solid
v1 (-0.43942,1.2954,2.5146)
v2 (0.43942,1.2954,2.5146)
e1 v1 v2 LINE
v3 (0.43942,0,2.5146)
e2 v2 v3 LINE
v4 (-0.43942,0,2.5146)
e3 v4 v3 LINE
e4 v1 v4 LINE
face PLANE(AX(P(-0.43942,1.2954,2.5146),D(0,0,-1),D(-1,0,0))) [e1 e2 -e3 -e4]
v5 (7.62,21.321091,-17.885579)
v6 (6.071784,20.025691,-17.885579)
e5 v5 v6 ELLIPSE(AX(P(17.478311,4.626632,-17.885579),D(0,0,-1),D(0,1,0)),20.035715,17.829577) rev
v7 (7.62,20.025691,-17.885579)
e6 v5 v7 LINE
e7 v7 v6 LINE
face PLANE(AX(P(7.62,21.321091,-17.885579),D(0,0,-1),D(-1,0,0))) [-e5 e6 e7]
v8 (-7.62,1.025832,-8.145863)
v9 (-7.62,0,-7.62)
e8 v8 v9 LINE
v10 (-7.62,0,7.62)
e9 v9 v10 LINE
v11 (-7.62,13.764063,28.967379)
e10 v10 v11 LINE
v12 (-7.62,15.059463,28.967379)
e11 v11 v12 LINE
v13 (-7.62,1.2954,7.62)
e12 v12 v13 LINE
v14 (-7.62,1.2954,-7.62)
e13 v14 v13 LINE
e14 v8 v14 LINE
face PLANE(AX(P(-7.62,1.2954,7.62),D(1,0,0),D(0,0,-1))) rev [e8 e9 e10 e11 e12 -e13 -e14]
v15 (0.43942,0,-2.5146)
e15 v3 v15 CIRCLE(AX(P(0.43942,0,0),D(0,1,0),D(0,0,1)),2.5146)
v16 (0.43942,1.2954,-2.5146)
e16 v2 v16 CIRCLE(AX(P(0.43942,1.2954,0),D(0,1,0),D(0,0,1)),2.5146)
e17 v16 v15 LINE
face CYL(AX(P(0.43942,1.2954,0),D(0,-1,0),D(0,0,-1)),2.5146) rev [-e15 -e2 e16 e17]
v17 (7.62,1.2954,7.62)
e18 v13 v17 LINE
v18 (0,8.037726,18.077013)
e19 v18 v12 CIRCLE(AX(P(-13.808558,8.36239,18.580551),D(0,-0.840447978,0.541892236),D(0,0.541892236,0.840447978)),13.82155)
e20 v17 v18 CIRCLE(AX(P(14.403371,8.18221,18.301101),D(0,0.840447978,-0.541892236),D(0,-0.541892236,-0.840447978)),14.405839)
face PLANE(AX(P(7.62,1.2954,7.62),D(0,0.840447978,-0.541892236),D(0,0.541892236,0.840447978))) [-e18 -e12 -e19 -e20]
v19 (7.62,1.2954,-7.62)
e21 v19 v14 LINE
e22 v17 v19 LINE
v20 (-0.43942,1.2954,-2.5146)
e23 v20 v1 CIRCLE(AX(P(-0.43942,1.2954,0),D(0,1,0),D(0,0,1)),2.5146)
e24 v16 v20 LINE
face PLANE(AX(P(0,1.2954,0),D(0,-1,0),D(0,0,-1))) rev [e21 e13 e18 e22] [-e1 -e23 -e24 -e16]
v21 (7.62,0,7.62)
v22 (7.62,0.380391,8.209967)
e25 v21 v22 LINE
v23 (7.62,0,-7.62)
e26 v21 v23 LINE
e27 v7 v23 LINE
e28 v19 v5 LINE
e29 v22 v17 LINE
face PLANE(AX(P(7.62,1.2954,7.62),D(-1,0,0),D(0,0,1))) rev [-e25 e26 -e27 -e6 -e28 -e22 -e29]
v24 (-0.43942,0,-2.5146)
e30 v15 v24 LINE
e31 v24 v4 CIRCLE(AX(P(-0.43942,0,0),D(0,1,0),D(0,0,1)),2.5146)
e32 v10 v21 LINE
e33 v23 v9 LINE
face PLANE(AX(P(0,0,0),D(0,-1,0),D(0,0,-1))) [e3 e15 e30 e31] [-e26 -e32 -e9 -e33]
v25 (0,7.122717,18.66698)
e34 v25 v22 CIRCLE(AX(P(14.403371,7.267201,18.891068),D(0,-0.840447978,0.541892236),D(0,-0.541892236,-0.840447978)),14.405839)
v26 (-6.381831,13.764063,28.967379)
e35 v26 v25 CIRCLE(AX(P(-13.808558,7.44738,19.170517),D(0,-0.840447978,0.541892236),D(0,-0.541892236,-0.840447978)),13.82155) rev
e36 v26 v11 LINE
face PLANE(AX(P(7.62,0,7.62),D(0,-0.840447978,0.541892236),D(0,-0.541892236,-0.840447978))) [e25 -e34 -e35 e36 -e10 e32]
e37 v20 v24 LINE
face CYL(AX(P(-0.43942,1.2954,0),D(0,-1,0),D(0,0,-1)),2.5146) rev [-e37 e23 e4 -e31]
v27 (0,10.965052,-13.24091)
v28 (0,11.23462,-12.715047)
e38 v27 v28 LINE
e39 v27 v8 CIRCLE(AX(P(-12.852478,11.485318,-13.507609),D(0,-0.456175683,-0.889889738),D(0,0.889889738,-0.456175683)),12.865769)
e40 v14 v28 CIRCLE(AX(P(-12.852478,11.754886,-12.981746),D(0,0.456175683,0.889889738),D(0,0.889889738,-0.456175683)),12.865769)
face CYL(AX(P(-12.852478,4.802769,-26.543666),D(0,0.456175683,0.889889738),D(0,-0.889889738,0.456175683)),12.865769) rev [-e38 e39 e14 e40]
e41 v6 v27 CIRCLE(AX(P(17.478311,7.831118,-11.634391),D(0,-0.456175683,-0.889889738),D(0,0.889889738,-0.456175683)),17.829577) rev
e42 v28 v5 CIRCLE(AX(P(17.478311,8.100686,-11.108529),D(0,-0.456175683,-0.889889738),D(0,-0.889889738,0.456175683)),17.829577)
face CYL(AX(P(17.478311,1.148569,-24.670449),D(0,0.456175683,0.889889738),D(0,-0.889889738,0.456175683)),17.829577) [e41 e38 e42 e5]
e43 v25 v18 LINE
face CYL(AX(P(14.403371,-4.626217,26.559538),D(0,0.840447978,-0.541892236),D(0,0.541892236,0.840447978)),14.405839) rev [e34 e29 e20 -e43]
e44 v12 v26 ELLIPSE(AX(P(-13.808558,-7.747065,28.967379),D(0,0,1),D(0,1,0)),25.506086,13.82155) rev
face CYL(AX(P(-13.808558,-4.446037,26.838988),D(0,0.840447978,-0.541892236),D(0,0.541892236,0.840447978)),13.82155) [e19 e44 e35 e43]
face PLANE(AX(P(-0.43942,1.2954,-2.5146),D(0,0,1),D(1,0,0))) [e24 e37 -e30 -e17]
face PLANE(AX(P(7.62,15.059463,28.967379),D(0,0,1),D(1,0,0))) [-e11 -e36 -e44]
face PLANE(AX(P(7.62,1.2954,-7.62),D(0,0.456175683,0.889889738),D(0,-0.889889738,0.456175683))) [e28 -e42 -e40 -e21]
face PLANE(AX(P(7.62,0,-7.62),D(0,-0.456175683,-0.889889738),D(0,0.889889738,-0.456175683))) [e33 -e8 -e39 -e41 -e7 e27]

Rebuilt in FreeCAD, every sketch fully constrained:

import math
import FreeCAD as App
import Part
import Sketcher
from FreeCAD import Vector
Q = App.Units.Quantity

doc = App.newDocument("Part")
params = doc.addObject("Spreadsheet::Sheet", "Params")
for row, (alias, value) in enumerate([
    ("sketch1_width", "0.6 in"),
    ("sketch1_radius", "0.099 in"),
    ("pad1_length", "0.051 in"),
    ("sketch2_length", "1 in"),
    ("sketch2_width", "0.051 in"),
    ("pad2_length", "0.6 in"),
    ("sketch3_height", "1 in"),
    ("sketch3_width", "0.6 in"),
    ("pocket1_length", "0.6 in"),
    ("sketch4_width", "0.6 in"),
    ("pocket2_length", "0.6 in"),
], start=1):
    params.set(f"A{row}", alias)
    params.set(f"B{row}", "=" + value)
    params.setAlias(f"B{row}", alias)

body = doc.addObject("PartDesign::Body", "Body")

sketch1 = body.newObject("Sketcher::SketchObject", "Sketch")
sketch1.AttachmentSupport = (doc.getObject("XZ_Plane"), [""])
sketch1.MapMode = "FlatFace"
sketch1.addGeometry(Part.LineSegment(Vector(-7.62, -7.62, 0), Vector(-7.62, 7.62, 0)), False)
sketch1.addGeometry(Part.LineSegment(Vector(-7.62, 7.62, 0), Vector(7.62, 7.62, 0)), False)
sketch1.addGeometry(Part.LineSegment(Vector(7.62, 7.62, 0), Vector(7.62, -7.62, 0)), False)
sketch1.addGeometry(Part.LineSegment(Vector(7.62, -7.62, 0), Vector(-7.62, -7.62, 0)), False)
sketch1.addGeometry(Part.ArcOfCircle(Part.Circle(Vector(-0.43942, 0, 0), Vector(0, 0, 1), 2.5146), math.radians(90), math.radians(270)), False)
sketch1.addGeometry(Part.LineSegment(Vector(-0.43942, -2.5146, 0), Vector(0.43942, -2.5146, 0)), False)
sketch1.addGeometry(Part.ArcOfCircle(Part.Circle(Vector(0.43942, 0, 0), Vector(0, 0, 1), 2.5146), math.radians(-90), math.radians(90)), False)
sketch1.addGeometry(Part.LineSegment(Vector(0.43942, 2.5146, 0), Vector(-0.43942, 2.5146, 0)), False)
sketch1.addConstraint(Sketcher.Constraint("Coincident", 0, 2, 1, 1))
sketch1.addConstraint(Sketcher.Constraint("Coincident", 1, 2, 2, 1))
sketch1.addConstraint(Sketcher.Constraint("Coincident", 2, 2, 3, 1))
sketch1.addConstraint(Sketcher.Constraint("Coincident", 3, 2, 0, 1))
sketch1.addConstraint(Sketcher.Constraint("Tangent", 4, 2, 5, 1))
sketch1.addConstraint(Sketcher.Constraint("Tangent", 5, 2, 6, 1))
sketch1.addConstraint(Sketcher.Constraint("Tangent", 6, 2, 7, 1))
sketch1.addConstraint(Sketcher.Constraint("Tangent", 7, 2, 4, 1))
sketch1.addConstraint(Sketcher.Constraint("Vertical", 0))
sketch1.addConstraint(Sketcher.Constraint("Horizontal", 1))
sketch1.addConstraint(Sketcher.Constraint("Vertical", 2))
sketch1.addConstraint(Sketcher.Constraint("Horizontal", 3))
sketch1.addConstraint(Sketcher.Constraint("Horizontal", 5))
sketch1.addConstraint(Sketcher.Constraint("Horizontal", 7))
sketch1.addConstraint(Sketcher.Constraint("Symmetric", 4, 3, 6, 3, -1, 1))
sketch1.addConstraint(Sketcher.Constraint("Symmetric", 0, 2, 2, 2, -1, 1))
sketch1.addConstraint(Sketcher.Constraint("Equal", 3, 0))
sketch1.addConstraint(Sketcher.Constraint("DistanceX", 1, 1, 1, 2, Q("0.6 in")))
sketch1.addConstraint(Sketcher.Constraint("Radius", 4, Q("0.099 in")))
sketch1.addConstraint(Sketcher.Constraint("DistanceX", 5, 1, 5, 2, Q("0.0346 in")))
sketch1.setExpression("Constraints[17]", "Params.sketch1_width")
sketch1.setExpression("Constraints[18]", "Params.sketch1_radius")
pad1 = body.newObject("PartDesign::Pad", "Pad")
pad1.Profile = sketch1
pad1.setExpression("Length", "Params.pad1_length")
pad1.Reversed = True

sketch2 = body.newObject("Sketcher::SketchObject", "Sketch001")
sketch2.AttachmentSupport = (doc.getObject("YZ_Plane"), [""])
sketch2.MapMode = "FlatFace"
sketch2.AttachmentOffset = App.Placement(Vector(0, 0, -0.3 * 25.4), App.Rotation())
sketch2.addGeometry(Part.LineSegment(Vector(15.059463, 28.967379, 0), Vector(1.2954, 7.62, 0)), False)
sketch2.addGeometry(Part.LineSegment(Vector(1.2954, 7.62, 0), Vector(0, 7.62, 0)), False)
sketch2.addGeometry(Part.LineSegment(Vector(0, 7.62, 0), Vector(13.764063, 28.967379, 0)), False)
sketch2.addGeometry(Part.LineSegment(Vector(13.764063, 28.967379, 0), Vector(15.059463, 28.967379, 0)), False)
sketch2.addGeometry(Part.LineSegment(Vector(1.2954, -7.62, 0), Vector(21.321091, -17.885579, 0)), False)
sketch2.addGeometry(Part.LineSegment(Vector(21.321091, -17.885579, 0), Vector(20.025691, -17.885579, 0)), False)
sketch2.addGeometry(Part.LineSegment(Vector(20.025691, -17.885579, 0), Vector(0, -7.62, 0)), False)
sketch2.addGeometry(Part.LineSegment(Vector(0, -7.62, 0), Vector(1.2954, -7.62, 0)), False)
sketch2.addConstraint(Sketcher.Constraint("Coincident", 0, 2, 1, 1))
sketch2.addConstraint(Sketcher.Constraint("Coincident", 1, 2, 2, 1))
sketch2.addConstraint(Sketcher.Constraint("Coincident", 2, 2, 3, 1))
sketch2.addConstraint(Sketcher.Constraint("Coincident", 3, 2, 0, 1))
sketch2.addConstraint(Sketcher.Constraint("Coincident", 4, 2, 5, 1))
sketch2.addConstraint(Sketcher.Constraint("Coincident", 5, 2, 6, 1))
sketch2.addConstraint(Sketcher.Constraint("Coincident", 6, 2, 7, 1))
sketch2.addConstraint(Sketcher.Constraint("Coincident", 7, 2, 4, 1))
sketch2.addConstraint(Sketcher.Constraint("Horizontal", 1))
sketch2.addConstraint(Sketcher.Constraint("Horizontal", 3))
sketch2.addConstraint(Sketcher.Constraint("Horizontal", 5))
sketch2.addConstraint(Sketcher.Constraint("Horizontal", 7))
sketch2.addConstraint(Sketcher.Constraint("Symmetric", 1, 2, 6, 2, -1, 1))
sketch2.addConstraint(Sketcher.Constraint("PointOnObject", 1, 2, -2))
sketch2.addConstraint(Sketcher.Constraint("Parallel", 0, 2))
sketch2.addConstraint(Sketcher.Constraint("Parallel", 4, 6))
sketch2.addConstraint(Sketcher.Constraint("Vertical", 0, 2, 7, 2))
sketch2.addConstraint(Sketcher.Constraint("Distance", 0, Q("1 in")))
sketch2.addConstraint(Sketcher.Constraint("DistanceY", -1, 1, 0, 2, Q("0.3 in")))
sketch2.addConstraint(Sketcher.Constraint("DistanceX", 1, 2, 1, 1, Q("0.051 in")))
sketch2.addConstraint(Sketcher.Constraint("DistanceY", -1, 1, 2, 2, Q("28.967379 mm")))
sketch2.addConstraint(Sketcher.Constraint("DistanceX", -1, 1, 4, 2, Q("21.321091 mm")))
sketch2.addConstraint(Sketcher.Constraint("DistanceY", 4, 2, -1, 1, Q("17.885579 mm")))
sketch2.setExpression("Constraints[17]", "Params.sketch2_length")
sketch2.setExpression("Constraints[19]", "Params.sketch2_width")
pad2 = body.newObject("PartDesign::Pad", "Pad001")
pad2.Profile = sketch2
pad2.setExpression("Length", "Params.pad2_length")

sketch3 = body.newObject("Sketcher::SketchObject", "Sketch002")
sketch3.Placement = App.Placement(Vector(0, -2.555384, 1.647625), App.Rotation(Vector(1, 0, 0), Vector(0, -0.541892236, -0.840447978), Vector(0, 0.840447978, -0.541892236), "ZXY"))
sketch3.addGeometry(Part.LineSegment(Vector(7.62, -32.506181, 0), Vector(7.62, -7.106181, 0)), False)
sketch3.addGeometry(Part.ArcOfCircle(Part.Circle(Vector(14.403371, -19.814999, 0), Vector(0, 0, 1), 14.405839), math.radians(118.091208), math.radians(178.939488)), False)
sketch3.addGeometry(Part.ArcOfCircle(Part.Circle(Vector(-13.808558, -20.1475, 0), Vector(0, 0, 1), 13.82155), math.radians(-63.400771), math.radians(2.484407)), False)
sketch3.addGeometry(Part.LineSegment(Vector(-7.62, -32.506181, 0), Vector(7.62, -32.506181, 0)), False)
sketch3.addConstraint(Sketcher.Constraint("Coincident", 0, 2, 1, 1))
sketch3.addConstraint(Sketcher.Constraint("Coincident", 1, 2, 2, 2))
sketch3.addConstraint(Sketcher.Constraint("Coincident", 2, 1, 3, 1))
sketch3.addConstraint(Sketcher.Constraint("Coincident", 3, 2, 0, 1))
sketch3.addConstraint(Sketcher.Constraint("Vertical", 0))
sketch3.addConstraint(Sketcher.Constraint("Horizontal", 3))
sketch3.addConstraint(Sketcher.Constraint("PointOnObject", 1, 2, -2))
sketch3.addConstraint(Sketcher.Constraint("DistanceY", 0, 1, 0, 2, Q("1 in")))
sketch3.addConstraint(Sketcher.Constraint("DistanceX", 3, 1, 3, 2, Q("0.6 in")))
sketch3.addConstraint(Sketcher.Constraint("DistanceX", -1, 1, 0, 2, Q("0.3 in")))
sketch3.addConstraint(Sketcher.Constraint("Radius", 1, Q("14.405839 mm")))
sketch3.addConstraint(Sketcher.Constraint("Radius", 2, Q("13.82155 mm")))
sketch3.addConstraint(Sketcher.Constraint("DistanceY", 1, 3, -1, 1, Q("19.814999 mm")))
sketch3.addConstraint(Sketcher.Constraint("DistanceY", 2, 3, -1, 1, Q("20.1475 mm")))
sketch3.setExpression("Constraints[7]", "Params.sketch3_height")
sketch3.setExpression("Constraints[8]", "Params.sketch3_width")
pocket1 = body.newObject("PartDesign::Pocket", "Pocket")
pocket1.Profile = sketch3
pocket1.setExpression("Length", "Params.pocket1_length")

sketch4 = body.newObject("Sketcher::SketchObject", "Sketch003")
sketch4.Placement = App.Placement(Vector(0, -2.823741, -5.508444), App.Rotation(Vector(1, 0, 0), Vector(0, 0.889889738, -0.456175683), Vector(0, 0.456175683, 0.889889738), "ZXY"))
sketch4.addGeometry(Part.LineSegment(Vector(-7.62, 27.132386, 0), Vector(-7.62, 4.628822, 0)), False)
sketch4.addGeometry(Part.ArcOfCircle(Part.Circle(Vector(-12.852478, 16.38251, 0), Vector(0, 0, 1), 12.865769), math.radians(-66.002444), math.radians(-2.604508)), False)
sketch4.addGeometry(Part.ArcOfCircle(Part.Circle(Vector(17.478311, 12.276158, 0), Vector(0, 0, 1), 17.829577), math.radians(123.567499), math.radians(168.607988)), False)
sketch4.addGeometry(Part.LineSegment(Vector(7.62, 27.132386, 0), Vector(-7.62, 27.132386, 0)), False)
sketch4.addConstraint(Sketcher.Constraint("Coincident", 0, 2, 1, 1))
sketch4.addConstraint(Sketcher.Constraint("Coincident", 1, 2, 2, 2))
sketch4.addConstraint(Sketcher.Constraint("Coincident", 2, 1, 3, 1))
sketch4.addConstraint(Sketcher.Constraint("Coincident", 3, 2, 0, 1))
sketch4.addConstraint(Sketcher.Constraint("Vertical", 0))
sketch4.addConstraint(Sketcher.Constraint("Horizontal", 3))
sketch4.addConstraint(Sketcher.Constraint("PointOnObject", 1, 2, -2))
sketch4.addConstraint(Sketcher.Constraint("DistanceX", 3, 2, 3, 1, Q("0.6 in")))
sketch4.addConstraint(Sketcher.Constraint("DistanceX", 0, 2, -1, 1, Q("0.3 in")))
sketch4.addConstraint(Sketcher.Constraint("Radius", 1, Q("12.865769 mm")))
sketch4.addConstraint(Sketcher.Constraint("Radius", 2, Q("17.829577 mm")))
sketch4.addConstraint(Sketcher.Constraint("DistanceY", 0, 2, 0, 1, Q("22.503564 mm")))
sketch4.addConstraint(Sketcher.Constraint("DistanceX", 1, 3, -1, 1, Q("12.852478 mm")))
sketch4.addConstraint(Sketcher.Constraint("DistanceY", -1, 1, 1, 3, Q("16.38251 mm")))
sketch4.setExpression("Constraints[7]", "Params.sketch4_width")
pocket2 = body.newObject("PartDesign::Pocket", "Pocket001")
pocket2.Profile = sketch4
pocket2.setExpression("Length", "Params.pocket2_length")

doc.recompute()
